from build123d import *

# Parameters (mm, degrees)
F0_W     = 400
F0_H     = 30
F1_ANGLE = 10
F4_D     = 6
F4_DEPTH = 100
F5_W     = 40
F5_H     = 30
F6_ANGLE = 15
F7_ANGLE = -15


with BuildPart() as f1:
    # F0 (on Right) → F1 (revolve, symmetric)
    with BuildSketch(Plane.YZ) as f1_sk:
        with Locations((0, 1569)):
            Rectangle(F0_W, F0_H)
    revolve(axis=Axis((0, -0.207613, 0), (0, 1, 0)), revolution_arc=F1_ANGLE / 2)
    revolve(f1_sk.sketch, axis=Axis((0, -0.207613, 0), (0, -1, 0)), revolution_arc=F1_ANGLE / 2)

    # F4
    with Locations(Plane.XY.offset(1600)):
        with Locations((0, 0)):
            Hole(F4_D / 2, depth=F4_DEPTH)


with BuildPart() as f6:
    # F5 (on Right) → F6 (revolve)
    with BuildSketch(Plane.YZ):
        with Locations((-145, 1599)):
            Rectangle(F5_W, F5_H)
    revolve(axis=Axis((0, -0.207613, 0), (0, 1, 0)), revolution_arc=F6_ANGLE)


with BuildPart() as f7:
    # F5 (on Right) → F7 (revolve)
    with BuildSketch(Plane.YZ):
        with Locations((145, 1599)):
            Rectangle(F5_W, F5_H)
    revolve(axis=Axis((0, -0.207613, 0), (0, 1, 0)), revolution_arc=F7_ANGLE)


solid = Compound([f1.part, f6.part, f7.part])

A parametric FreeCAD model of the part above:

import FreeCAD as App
import Part
import Sketcher

V = App.Vector
Q = App.Units.Quantity


def add_polygon(sketch, points):
    """Adds a closed chain of lines whose ends are joined by coincident constraints."""
    first, n = sketch.GeometryCount, len(points)
    for a, b in zip(points, points[1:] + points[:1]):
        sketch.addGeometry(Part.LineSegment(App.Vector(*a, 0), App.Vector(*b, 0)), False)
    for i in range(n):
        sketch.addConstraint(Sketcher.Constraint("Coincident", first + i, 2, first + (i + 1) % n, 1))

doc = App.newDocument("Part")
body = doc.addObject("PartDesign::Body", "Body")

sketch1 = body.newObject("Sketcher::SketchObject", "Sketch")
sketch1.AttachmentSupport = (doc.getObject("YZ_Plane"), [""])
sketch1.MapMode = "FlatFace"
add_polygon(sketch1, [(-200, 1584), (-200, 1554), (200, 1554), (200, 1584)])
sketch1.addConstraint(Sketcher.Constraint("Vertical", 0))
sketch1.addConstraint(Sketcher.Constraint("Horizontal", 1))
sketch1.addConstraint(Sketcher.Constraint("Vertical", 2))
sketch1.addConstraint(Sketcher.Constraint("Horizontal", 3))
sketch1.addConstraint(Sketcher.Constraint("DistanceX", 1, 1, 1, 2, Q("400 mm")))
sketch1.addConstraint(Sketcher.Constraint("DistanceY", 0, 2, 0, 1, Q("30 mm")))
sketch1.addConstraint(Sketcher.Constraint("DistanceX", 0, 2, -1, 1, Q("200 mm")))
sketch1.addConstraint(Sketcher.Constraint("DistanceY", -1, 1, 0, 2, Q("1554 mm")))
revolution = body.newObject("PartDesign::Revolution", "Revolution")
revolution.Profile = sketch1
revolution.ReferenceAxis = (sketch1, ["H_Axis"])
revolution.Angle = 5

sketch2 = body.newObject("Sketcher::SketchObject", "Sketch001")
sketch2.AttachmentSupport = (doc.getObject("YZ_Plane"), [""])
sketch2.MapMode = "FlatFace"
add_polygon(sketch2, [(-200, 1584), (-200, 1554), (200, 1554), (200, 1584)])
sketch2.addConstraint(Sketcher.Constraint("Vertical", 0))
sketch2.addConstraint(Sketcher.Constraint("Horizontal", 1))
sketch2.addConstraint(Sketcher.Constraint("Vertical", 2))
sketch2.addConstraint(Sketcher.Constraint("Horizontal", 3))
sketch2.addConstraint(Sketcher.Constraint("DistanceX", 1, 1, 1, 2, Q("400 mm")))
sketch2.addConstraint(Sketcher.Constraint("DistanceY", 0, 2, 0, 1, Q("30 mm")))
sketch2.addConstraint(Sketcher.Constraint("DistanceX", 0, 2, -1, 1, Q("200 mm")))
sketch2.addConstraint(Sketcher.Constraint("DistanceY", -1, 1, 0, 2, Q("1554 mm")))
revolution2 = body.newObject("PartDesign::Revolution", "Revolution001")
revolution2.Profile = sketch2
revolution2.ReferenceAxis = (sketch2, ["H_Axis"])
revolution2.Angle = 5
revolution2.Reversed = True

sketch3 = body.newObject("Sketcher::SketchObject", "Sketch002")
sketch3.AttachmentSupport = (doc.getObject("XY_Plane"), [""])
sketch3.MapMode = "FlatFace"
sketch3.AttachmentOffset = App.Placement(V(0, 0, 1600), App.Rotation())
sketch3.addGeometry(Part.Circle(V(0, 0, 0), V(0, 0, 1), 3), False)
sketch3.addConstraint(Sketcher.Constraint("Coincident", 0, 3, -1, 1))
sketch3.addConstraint(Sketcher.Constraint("Diameter", 0, Q("6 mm")))
doc.recompute()
hole = body.newObject("PartDesign::Hole", "Hole")
hole.Profile = sketch3
hole.ThreadType = "None"
hole.Diameter = 6
hole.DepthType = "Dimension"
hole.Depth = 100
hole.DrillPoint = "Flat"
body2 = doc.addObject("PartDesign::Body", "Body001")

sketch4 = body2.newObject("Sketcher::SketchObject", "Sketch003")
sketch4.AttachmentSupport = (doc.getObject("YZ_Plane001"), [""])
sketch4.MapMode = "FlatFace"
add_polygon(sketch4, [(-165, 1614), (-165, 1584), (-125, 1584), (-125, 1614)])
sketch4.addConstraint(Sketcher.Constraint("Vertical", 0))
sketch4.addConstraint(Sketcher.Constraint("Horizontal", 1))
sketch4.addConstraint(Sketcher.Constraint("Vertical", 2))
sketch4.addConstraint(Sketcher.Constraint("Horizontal", 3))
sketch4.addConstraint(Sketcher.Constraint("DistanceX", 1, 1, 1, 2, Q("40 mm")))
sketch4.addConstraint(Sketcher.Constraint("DistanceY", 0, 2, 0, 1, Q("30 mm")))
sketch4.addConstraint(Sketcher.Constraint("DistanceX", 0, 2, -1, 1, Q("165 mm")))
sketch4.addConstraint(Sketcher.Constraint("DistanceY", -1, 1, 0, 2, Q("1584 mm")))
revolution3 = body2.newObject("PartDesign::Revolution", "Revolution002")
revolution3.Profile = sketch4
revolution3.ReferenceAxis = (sketch4, ["H_Axis"])
revolution3.Angle = 15
body3 = doc.addObject("PartDesign::Body", "Body002")

sketch5 = body3.newObject("Sketcher::SketchObject", "Sketch004")
sketch5.AttachmentSupport = (doc.getObject("YZ_Plane002"), [""])
sketch5.MapMode = "FlatFace"
add_polygon(sketch5, [(125, 1614), (125, 1584), (165, 1584), (165, 1614)])
sketch5.addConstraint(Sketcher.Constraint("Vertical", 0))
sketch5.addConstraint(Sketcher.Constraint("Horizontal", 1))
sketch5.addConstraint(Sketcher.Constraint("Vertical", 2))
sketch5.addConstraint(Sketcher.Constraint("Horizontal", 3))
sketch5.addConstraint(Sketcher.Constraint("DistanceX", 1, 1, 1, 2, Q("40 mm")))
sketch5.addConstraint(Sketcher.Constraint("DistanceY", 0, 2, 0, 1, Q("30 mm")))
sketch5.addConstraint(Sketcher.Constraint("DistanceX", -1, 1, 0, 2, Q("125 mm")))
sketch5.addConstraint(Sketcher.Constraint("DistanceY", -1, 1, 0, 2, Q("1584 mm")))
revolution4 = body3.newObject("PartDesign::Revolution", "Revolution003")
revolution4.Profile = sketch5
revolution4.ReferenceAxis = (sketch5, ["H_Axis"])
revolution4.Angle = 15
revolution4.Reversed = True

doc.recompute()
